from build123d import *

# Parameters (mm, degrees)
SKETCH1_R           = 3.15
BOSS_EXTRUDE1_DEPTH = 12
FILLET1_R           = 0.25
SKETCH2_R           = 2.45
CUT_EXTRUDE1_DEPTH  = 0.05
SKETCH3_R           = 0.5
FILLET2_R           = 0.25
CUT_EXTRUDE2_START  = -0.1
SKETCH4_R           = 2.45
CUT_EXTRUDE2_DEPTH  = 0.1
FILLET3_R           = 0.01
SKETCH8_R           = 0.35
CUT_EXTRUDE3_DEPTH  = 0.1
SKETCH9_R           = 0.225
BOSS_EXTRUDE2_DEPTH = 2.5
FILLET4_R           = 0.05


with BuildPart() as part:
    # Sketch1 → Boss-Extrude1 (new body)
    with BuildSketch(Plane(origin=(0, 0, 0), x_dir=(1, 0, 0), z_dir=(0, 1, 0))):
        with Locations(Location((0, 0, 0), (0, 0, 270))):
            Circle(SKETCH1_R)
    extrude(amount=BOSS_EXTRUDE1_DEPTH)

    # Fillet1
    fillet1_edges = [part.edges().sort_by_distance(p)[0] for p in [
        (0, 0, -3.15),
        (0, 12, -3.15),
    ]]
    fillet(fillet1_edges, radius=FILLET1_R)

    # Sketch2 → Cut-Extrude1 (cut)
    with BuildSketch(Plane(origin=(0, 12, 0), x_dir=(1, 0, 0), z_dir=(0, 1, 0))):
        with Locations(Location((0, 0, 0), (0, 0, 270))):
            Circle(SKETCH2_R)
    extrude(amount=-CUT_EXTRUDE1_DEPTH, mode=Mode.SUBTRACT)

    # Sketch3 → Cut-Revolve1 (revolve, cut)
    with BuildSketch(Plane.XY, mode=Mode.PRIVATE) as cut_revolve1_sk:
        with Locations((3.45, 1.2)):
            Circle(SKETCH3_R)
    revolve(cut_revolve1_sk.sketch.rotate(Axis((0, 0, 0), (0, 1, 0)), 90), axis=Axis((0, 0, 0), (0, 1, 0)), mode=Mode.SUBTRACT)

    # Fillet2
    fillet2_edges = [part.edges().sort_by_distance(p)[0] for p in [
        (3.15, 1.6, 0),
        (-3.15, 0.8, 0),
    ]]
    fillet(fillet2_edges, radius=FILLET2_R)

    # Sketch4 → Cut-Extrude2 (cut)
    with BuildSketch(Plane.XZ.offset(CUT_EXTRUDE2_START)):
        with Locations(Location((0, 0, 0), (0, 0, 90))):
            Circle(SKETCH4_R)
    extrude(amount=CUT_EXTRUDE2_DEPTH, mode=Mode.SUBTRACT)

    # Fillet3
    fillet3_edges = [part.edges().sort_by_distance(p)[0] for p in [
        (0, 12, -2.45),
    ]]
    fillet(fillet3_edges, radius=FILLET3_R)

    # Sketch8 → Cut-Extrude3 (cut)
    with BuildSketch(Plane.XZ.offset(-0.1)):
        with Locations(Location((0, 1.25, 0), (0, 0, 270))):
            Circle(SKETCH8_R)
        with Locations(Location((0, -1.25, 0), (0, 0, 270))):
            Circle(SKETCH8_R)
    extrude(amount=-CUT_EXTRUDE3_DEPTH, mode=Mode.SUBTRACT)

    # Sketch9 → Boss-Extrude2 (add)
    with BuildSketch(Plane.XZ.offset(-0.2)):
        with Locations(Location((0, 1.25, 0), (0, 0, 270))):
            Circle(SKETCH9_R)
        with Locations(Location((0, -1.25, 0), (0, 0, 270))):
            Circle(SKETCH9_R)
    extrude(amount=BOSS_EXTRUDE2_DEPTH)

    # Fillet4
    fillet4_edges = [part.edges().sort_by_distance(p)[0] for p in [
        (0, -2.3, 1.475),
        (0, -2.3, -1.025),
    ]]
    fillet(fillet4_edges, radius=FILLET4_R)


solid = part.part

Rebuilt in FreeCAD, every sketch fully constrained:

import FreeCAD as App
import Part
import Sketcher

V = App.Vector
Q = App.Units.Quantity


def edges_at(feature, points):
    """Names of the edges that pass closest to the given points."""
    edges = feature.Shape.Edges
    near = lambda p: min(range(len(edges)), key=lambda i: edges[i].distToShape(Part.Vertex(*p))[0])
    return sorted({f"Edge{near(p) + 1}" for p in points})

doc = App.newDocument("Part")
body = doc.addObject("PartDesign::Body", "Body")

# Sketch on XZ plane
sketch1 = doc.addObject("Sketcher::SketchObject", "Sketch")
body.addObject(sketch1)
sketch1.AttachmentSupport = (doc.XZ_Plane, [""])
sketch1.MapMode = "FlatFace"
sketch1.addGeometry(Part.Circle(V(0, 0, 0), V(0, 0, 1), 3.1), False)
sketch1.addConstraint([
    Sketcher.Constraint("Coincident", 0, 3, -1, 1),
    Sketcher.Constraint("Diameter", 0, Q("6.3 mm")),
])
pad1 = doc.addObject("PartDesign::Pad", "Pad")
body.addObject(pad1)
pad1.Profile = sketch1
pad1.Length = 12
pad1.Reversed = True
doc.recompute()

fillet = doc.addObject("PartDesign::Fillet", "Fillet")
body.addObject(fillet)
fillet.Base = (pad1, edges_at(pad1, [(0, 0, -3.15), (0, 12, -3.15)]))
fillet.Radius = 0.25

# Sketch on XZ plane
sketch2 = doc.addObject("Sketcher::SketchObject", "Sketch001")
body.addObject(sketch2)
sketch2.AttachmentSupport = (doc.XZ_Plane, [""])
sketch2.MapMode = "FlatFace"
sketch2.AttachmentOffset = App.Placement(V(0, 0, -12), App.Rotation())
sketch2.addGeometry(Part.Circle(V(0, 0, 0), V(0, 0, 1), 2.5), False)
sketch2.addConstraint([
    Sketcher.Constraint("Coincident", 0, 3, -1, 1),
    Sketcher.Constraint("Diameter", 0, Q("4.9 mm")),
])
pocket1 = doc.addObject("PartDesign::Pocket", "Pocket")
body.addObject(pocket1)
pocket1.Profile = sketch2
pocket1.Length = 0.05
pocket1.Reversed = True

# Sketch on XY plane
sketch3 = doc.addObject("Sketcher::SketchObject", "Sketch002")
body.addObject(sketch3)
sketch3.AttachmentSupport = (doc.XY_Plane, [""])
sketch3.MapMode = "FlatFace"
sketch3.addGeometry(Part.Circle(V(3.5, 1.2, 0), V(0, 0, 1), 0.5), False)
sketch3.addConstraint([
    Sketcher.Constraint("Diameter", 0, Q("1 mm")),
    Sketcher.Constraint("DistanceY", -1, 1, 0, 3, Q("1.2 mm")),
    Sketcher.Constraint("DistanceX", -1, 1, 0, 3, Q("3.45 mm")),
])
groove = doc.addObject("PartDesign::Groove", "Groove")
body.addObject(groove)
groove.Profile = sketch3
groove.ReferenceAxis = (sketch3, ["V_Axis"])
groove.Angle = 360
doc.recompute()

fillet2 = doc.addObject("PartDesign::Fillet", "Fillet001")
body.addObject(fillet2)
fillet2.Base = (groove, edges_at(groove, [(3.15, 1.6, 0), (-3.15, 0.8, 0)]))
fillet2.Radius = 0.25

# Sketch on XZ plane
sketch4 = doc.addObject("Sketcher::SketchObject", "Sketch003")
body.addObject(sketch4)
sketch4.AttachmentSupport = (doc.XZ_Plane, [""])
sketch4.MapMode = "FlatFace"
sketch4.AttachmentOffset = App.Placement(V(0, 0, -0.1), App.Rotation())
sketch4.addGeometry(Part.Circle(V(0, 0, 0), V(0, 0, 1), 2.5), False)
sketch4.addConstraint([
    Sketcher.Constraint("Coincident", 0, 3, -1, 1),
    Sketcher.Constraint("Diameter", 0, Q("4.9 mm")),
])
pocket2 = doc.addObject("PartDesign::Pocket", "Pocket001")
body.addObject(pocket2)
pocket2.Profile = sketch4
pocket2.Length = 0.1
pocket2.Reversed = True
doc.recompute()

fillet3 = doc.addObject("PartDesign::Fillet", "Fillet002")
body.addObject(fillet3)
fillet3.Base = (pocket2, edges_at(pocket2, [(0, 12, -2.45)]))
fillet3.Radius = 0.01

# Sketch on XZ plane
sketch5 = doc.addObject("Sketcher::SketchObject", "Sketch004")
body.addObject(sketch5)
sketch5.AttachmentSupport = (doc.XZ_Plane, [""])
sketch5.MapMode = "FlatFace"
sketch5.AttachmentOffset = App.Placement(V(0, 0, -0.1), App.Rotation())
sketch5.addGeometry([
    Part.Circle(V(0, 1.25, 0), V(0, 0, 1), 0.35),
    Part.Circle(V(0, -1.25, 0), V(0, 0, 1), 0.35),
], False)
sketch5.addConstraint([
    Sketcher.Constraint("Equal", 0, 1),
    Sketcher.Constraint("Symmetric", 0, 3, 1, 3, -1, 1),
    Sketcher.Constraint("PointOnObject", 0, 3, -2),
    Sketcher.Constraint("Diameter", 0, Q("0.7 mm")),
    Sketcher.Constraint("DistanceY", 1, 3, 0, 3, Q("2.5 mm")),
])
pocket3 = doc.addObject("PartDesign::Pocket", "Pocket002")
body.addObject(pocket3)
pocket3.Profile = sketch5
pocket3.Length = 0.1

# Sketch on XZ plane
sketch6 = doc.addObject("Sketcher::SketchObject", "Sketch005")
body.addObject(sketch6)
sketch6.AttachmentSupport = (doc.XZ_Plane, [""])
sketch6.MapMode = "FlatFace"
sketch6.AttachmentOffset = App.Placement(V(0, 0, -0.2), App.Rotation())
sketch6.addGeometry([
    Part.Circle(V(0, 1.25, 0), V(0, 0, 1), 0.23),
    Part.Circle(V(0, -1.25, 0), V(0, 0, 1), 0.23),
], False)
sketch6.addConstraint([
    Sketcher.Constraint("Equal", 0, 1),
    Sketcher.Constraint("Symmetric", 0, 3, 1, 3, -1, 1),
    Sketcher.Constraint("PointOnObject", 0, 3, -2),
    Sketcher.Constraint("Diameter", 0, Q("0.45 mm")),
    Sketcher.Constraint("DistanceY", 1, 3, 0, 3, Q("2.5 mm")),
])
pad2 = doc.addObject("PartDesign::Pad", "Pad001")
body.addObject(pad2)
pad2.Profile = sketch6
pad2.Length = 2.5
doc.recompute()

fillet4 = doc.addObject("PartDesign::Fillet", "Fillet003")
body.addObject(fillet4)
fillet4.Base = (pad2, edges_at(pad2, [(0, -2.3, 1.475), (0, -2.3, -1.025)]))
fillet4.Radius = 0.05

doc.recompute()
